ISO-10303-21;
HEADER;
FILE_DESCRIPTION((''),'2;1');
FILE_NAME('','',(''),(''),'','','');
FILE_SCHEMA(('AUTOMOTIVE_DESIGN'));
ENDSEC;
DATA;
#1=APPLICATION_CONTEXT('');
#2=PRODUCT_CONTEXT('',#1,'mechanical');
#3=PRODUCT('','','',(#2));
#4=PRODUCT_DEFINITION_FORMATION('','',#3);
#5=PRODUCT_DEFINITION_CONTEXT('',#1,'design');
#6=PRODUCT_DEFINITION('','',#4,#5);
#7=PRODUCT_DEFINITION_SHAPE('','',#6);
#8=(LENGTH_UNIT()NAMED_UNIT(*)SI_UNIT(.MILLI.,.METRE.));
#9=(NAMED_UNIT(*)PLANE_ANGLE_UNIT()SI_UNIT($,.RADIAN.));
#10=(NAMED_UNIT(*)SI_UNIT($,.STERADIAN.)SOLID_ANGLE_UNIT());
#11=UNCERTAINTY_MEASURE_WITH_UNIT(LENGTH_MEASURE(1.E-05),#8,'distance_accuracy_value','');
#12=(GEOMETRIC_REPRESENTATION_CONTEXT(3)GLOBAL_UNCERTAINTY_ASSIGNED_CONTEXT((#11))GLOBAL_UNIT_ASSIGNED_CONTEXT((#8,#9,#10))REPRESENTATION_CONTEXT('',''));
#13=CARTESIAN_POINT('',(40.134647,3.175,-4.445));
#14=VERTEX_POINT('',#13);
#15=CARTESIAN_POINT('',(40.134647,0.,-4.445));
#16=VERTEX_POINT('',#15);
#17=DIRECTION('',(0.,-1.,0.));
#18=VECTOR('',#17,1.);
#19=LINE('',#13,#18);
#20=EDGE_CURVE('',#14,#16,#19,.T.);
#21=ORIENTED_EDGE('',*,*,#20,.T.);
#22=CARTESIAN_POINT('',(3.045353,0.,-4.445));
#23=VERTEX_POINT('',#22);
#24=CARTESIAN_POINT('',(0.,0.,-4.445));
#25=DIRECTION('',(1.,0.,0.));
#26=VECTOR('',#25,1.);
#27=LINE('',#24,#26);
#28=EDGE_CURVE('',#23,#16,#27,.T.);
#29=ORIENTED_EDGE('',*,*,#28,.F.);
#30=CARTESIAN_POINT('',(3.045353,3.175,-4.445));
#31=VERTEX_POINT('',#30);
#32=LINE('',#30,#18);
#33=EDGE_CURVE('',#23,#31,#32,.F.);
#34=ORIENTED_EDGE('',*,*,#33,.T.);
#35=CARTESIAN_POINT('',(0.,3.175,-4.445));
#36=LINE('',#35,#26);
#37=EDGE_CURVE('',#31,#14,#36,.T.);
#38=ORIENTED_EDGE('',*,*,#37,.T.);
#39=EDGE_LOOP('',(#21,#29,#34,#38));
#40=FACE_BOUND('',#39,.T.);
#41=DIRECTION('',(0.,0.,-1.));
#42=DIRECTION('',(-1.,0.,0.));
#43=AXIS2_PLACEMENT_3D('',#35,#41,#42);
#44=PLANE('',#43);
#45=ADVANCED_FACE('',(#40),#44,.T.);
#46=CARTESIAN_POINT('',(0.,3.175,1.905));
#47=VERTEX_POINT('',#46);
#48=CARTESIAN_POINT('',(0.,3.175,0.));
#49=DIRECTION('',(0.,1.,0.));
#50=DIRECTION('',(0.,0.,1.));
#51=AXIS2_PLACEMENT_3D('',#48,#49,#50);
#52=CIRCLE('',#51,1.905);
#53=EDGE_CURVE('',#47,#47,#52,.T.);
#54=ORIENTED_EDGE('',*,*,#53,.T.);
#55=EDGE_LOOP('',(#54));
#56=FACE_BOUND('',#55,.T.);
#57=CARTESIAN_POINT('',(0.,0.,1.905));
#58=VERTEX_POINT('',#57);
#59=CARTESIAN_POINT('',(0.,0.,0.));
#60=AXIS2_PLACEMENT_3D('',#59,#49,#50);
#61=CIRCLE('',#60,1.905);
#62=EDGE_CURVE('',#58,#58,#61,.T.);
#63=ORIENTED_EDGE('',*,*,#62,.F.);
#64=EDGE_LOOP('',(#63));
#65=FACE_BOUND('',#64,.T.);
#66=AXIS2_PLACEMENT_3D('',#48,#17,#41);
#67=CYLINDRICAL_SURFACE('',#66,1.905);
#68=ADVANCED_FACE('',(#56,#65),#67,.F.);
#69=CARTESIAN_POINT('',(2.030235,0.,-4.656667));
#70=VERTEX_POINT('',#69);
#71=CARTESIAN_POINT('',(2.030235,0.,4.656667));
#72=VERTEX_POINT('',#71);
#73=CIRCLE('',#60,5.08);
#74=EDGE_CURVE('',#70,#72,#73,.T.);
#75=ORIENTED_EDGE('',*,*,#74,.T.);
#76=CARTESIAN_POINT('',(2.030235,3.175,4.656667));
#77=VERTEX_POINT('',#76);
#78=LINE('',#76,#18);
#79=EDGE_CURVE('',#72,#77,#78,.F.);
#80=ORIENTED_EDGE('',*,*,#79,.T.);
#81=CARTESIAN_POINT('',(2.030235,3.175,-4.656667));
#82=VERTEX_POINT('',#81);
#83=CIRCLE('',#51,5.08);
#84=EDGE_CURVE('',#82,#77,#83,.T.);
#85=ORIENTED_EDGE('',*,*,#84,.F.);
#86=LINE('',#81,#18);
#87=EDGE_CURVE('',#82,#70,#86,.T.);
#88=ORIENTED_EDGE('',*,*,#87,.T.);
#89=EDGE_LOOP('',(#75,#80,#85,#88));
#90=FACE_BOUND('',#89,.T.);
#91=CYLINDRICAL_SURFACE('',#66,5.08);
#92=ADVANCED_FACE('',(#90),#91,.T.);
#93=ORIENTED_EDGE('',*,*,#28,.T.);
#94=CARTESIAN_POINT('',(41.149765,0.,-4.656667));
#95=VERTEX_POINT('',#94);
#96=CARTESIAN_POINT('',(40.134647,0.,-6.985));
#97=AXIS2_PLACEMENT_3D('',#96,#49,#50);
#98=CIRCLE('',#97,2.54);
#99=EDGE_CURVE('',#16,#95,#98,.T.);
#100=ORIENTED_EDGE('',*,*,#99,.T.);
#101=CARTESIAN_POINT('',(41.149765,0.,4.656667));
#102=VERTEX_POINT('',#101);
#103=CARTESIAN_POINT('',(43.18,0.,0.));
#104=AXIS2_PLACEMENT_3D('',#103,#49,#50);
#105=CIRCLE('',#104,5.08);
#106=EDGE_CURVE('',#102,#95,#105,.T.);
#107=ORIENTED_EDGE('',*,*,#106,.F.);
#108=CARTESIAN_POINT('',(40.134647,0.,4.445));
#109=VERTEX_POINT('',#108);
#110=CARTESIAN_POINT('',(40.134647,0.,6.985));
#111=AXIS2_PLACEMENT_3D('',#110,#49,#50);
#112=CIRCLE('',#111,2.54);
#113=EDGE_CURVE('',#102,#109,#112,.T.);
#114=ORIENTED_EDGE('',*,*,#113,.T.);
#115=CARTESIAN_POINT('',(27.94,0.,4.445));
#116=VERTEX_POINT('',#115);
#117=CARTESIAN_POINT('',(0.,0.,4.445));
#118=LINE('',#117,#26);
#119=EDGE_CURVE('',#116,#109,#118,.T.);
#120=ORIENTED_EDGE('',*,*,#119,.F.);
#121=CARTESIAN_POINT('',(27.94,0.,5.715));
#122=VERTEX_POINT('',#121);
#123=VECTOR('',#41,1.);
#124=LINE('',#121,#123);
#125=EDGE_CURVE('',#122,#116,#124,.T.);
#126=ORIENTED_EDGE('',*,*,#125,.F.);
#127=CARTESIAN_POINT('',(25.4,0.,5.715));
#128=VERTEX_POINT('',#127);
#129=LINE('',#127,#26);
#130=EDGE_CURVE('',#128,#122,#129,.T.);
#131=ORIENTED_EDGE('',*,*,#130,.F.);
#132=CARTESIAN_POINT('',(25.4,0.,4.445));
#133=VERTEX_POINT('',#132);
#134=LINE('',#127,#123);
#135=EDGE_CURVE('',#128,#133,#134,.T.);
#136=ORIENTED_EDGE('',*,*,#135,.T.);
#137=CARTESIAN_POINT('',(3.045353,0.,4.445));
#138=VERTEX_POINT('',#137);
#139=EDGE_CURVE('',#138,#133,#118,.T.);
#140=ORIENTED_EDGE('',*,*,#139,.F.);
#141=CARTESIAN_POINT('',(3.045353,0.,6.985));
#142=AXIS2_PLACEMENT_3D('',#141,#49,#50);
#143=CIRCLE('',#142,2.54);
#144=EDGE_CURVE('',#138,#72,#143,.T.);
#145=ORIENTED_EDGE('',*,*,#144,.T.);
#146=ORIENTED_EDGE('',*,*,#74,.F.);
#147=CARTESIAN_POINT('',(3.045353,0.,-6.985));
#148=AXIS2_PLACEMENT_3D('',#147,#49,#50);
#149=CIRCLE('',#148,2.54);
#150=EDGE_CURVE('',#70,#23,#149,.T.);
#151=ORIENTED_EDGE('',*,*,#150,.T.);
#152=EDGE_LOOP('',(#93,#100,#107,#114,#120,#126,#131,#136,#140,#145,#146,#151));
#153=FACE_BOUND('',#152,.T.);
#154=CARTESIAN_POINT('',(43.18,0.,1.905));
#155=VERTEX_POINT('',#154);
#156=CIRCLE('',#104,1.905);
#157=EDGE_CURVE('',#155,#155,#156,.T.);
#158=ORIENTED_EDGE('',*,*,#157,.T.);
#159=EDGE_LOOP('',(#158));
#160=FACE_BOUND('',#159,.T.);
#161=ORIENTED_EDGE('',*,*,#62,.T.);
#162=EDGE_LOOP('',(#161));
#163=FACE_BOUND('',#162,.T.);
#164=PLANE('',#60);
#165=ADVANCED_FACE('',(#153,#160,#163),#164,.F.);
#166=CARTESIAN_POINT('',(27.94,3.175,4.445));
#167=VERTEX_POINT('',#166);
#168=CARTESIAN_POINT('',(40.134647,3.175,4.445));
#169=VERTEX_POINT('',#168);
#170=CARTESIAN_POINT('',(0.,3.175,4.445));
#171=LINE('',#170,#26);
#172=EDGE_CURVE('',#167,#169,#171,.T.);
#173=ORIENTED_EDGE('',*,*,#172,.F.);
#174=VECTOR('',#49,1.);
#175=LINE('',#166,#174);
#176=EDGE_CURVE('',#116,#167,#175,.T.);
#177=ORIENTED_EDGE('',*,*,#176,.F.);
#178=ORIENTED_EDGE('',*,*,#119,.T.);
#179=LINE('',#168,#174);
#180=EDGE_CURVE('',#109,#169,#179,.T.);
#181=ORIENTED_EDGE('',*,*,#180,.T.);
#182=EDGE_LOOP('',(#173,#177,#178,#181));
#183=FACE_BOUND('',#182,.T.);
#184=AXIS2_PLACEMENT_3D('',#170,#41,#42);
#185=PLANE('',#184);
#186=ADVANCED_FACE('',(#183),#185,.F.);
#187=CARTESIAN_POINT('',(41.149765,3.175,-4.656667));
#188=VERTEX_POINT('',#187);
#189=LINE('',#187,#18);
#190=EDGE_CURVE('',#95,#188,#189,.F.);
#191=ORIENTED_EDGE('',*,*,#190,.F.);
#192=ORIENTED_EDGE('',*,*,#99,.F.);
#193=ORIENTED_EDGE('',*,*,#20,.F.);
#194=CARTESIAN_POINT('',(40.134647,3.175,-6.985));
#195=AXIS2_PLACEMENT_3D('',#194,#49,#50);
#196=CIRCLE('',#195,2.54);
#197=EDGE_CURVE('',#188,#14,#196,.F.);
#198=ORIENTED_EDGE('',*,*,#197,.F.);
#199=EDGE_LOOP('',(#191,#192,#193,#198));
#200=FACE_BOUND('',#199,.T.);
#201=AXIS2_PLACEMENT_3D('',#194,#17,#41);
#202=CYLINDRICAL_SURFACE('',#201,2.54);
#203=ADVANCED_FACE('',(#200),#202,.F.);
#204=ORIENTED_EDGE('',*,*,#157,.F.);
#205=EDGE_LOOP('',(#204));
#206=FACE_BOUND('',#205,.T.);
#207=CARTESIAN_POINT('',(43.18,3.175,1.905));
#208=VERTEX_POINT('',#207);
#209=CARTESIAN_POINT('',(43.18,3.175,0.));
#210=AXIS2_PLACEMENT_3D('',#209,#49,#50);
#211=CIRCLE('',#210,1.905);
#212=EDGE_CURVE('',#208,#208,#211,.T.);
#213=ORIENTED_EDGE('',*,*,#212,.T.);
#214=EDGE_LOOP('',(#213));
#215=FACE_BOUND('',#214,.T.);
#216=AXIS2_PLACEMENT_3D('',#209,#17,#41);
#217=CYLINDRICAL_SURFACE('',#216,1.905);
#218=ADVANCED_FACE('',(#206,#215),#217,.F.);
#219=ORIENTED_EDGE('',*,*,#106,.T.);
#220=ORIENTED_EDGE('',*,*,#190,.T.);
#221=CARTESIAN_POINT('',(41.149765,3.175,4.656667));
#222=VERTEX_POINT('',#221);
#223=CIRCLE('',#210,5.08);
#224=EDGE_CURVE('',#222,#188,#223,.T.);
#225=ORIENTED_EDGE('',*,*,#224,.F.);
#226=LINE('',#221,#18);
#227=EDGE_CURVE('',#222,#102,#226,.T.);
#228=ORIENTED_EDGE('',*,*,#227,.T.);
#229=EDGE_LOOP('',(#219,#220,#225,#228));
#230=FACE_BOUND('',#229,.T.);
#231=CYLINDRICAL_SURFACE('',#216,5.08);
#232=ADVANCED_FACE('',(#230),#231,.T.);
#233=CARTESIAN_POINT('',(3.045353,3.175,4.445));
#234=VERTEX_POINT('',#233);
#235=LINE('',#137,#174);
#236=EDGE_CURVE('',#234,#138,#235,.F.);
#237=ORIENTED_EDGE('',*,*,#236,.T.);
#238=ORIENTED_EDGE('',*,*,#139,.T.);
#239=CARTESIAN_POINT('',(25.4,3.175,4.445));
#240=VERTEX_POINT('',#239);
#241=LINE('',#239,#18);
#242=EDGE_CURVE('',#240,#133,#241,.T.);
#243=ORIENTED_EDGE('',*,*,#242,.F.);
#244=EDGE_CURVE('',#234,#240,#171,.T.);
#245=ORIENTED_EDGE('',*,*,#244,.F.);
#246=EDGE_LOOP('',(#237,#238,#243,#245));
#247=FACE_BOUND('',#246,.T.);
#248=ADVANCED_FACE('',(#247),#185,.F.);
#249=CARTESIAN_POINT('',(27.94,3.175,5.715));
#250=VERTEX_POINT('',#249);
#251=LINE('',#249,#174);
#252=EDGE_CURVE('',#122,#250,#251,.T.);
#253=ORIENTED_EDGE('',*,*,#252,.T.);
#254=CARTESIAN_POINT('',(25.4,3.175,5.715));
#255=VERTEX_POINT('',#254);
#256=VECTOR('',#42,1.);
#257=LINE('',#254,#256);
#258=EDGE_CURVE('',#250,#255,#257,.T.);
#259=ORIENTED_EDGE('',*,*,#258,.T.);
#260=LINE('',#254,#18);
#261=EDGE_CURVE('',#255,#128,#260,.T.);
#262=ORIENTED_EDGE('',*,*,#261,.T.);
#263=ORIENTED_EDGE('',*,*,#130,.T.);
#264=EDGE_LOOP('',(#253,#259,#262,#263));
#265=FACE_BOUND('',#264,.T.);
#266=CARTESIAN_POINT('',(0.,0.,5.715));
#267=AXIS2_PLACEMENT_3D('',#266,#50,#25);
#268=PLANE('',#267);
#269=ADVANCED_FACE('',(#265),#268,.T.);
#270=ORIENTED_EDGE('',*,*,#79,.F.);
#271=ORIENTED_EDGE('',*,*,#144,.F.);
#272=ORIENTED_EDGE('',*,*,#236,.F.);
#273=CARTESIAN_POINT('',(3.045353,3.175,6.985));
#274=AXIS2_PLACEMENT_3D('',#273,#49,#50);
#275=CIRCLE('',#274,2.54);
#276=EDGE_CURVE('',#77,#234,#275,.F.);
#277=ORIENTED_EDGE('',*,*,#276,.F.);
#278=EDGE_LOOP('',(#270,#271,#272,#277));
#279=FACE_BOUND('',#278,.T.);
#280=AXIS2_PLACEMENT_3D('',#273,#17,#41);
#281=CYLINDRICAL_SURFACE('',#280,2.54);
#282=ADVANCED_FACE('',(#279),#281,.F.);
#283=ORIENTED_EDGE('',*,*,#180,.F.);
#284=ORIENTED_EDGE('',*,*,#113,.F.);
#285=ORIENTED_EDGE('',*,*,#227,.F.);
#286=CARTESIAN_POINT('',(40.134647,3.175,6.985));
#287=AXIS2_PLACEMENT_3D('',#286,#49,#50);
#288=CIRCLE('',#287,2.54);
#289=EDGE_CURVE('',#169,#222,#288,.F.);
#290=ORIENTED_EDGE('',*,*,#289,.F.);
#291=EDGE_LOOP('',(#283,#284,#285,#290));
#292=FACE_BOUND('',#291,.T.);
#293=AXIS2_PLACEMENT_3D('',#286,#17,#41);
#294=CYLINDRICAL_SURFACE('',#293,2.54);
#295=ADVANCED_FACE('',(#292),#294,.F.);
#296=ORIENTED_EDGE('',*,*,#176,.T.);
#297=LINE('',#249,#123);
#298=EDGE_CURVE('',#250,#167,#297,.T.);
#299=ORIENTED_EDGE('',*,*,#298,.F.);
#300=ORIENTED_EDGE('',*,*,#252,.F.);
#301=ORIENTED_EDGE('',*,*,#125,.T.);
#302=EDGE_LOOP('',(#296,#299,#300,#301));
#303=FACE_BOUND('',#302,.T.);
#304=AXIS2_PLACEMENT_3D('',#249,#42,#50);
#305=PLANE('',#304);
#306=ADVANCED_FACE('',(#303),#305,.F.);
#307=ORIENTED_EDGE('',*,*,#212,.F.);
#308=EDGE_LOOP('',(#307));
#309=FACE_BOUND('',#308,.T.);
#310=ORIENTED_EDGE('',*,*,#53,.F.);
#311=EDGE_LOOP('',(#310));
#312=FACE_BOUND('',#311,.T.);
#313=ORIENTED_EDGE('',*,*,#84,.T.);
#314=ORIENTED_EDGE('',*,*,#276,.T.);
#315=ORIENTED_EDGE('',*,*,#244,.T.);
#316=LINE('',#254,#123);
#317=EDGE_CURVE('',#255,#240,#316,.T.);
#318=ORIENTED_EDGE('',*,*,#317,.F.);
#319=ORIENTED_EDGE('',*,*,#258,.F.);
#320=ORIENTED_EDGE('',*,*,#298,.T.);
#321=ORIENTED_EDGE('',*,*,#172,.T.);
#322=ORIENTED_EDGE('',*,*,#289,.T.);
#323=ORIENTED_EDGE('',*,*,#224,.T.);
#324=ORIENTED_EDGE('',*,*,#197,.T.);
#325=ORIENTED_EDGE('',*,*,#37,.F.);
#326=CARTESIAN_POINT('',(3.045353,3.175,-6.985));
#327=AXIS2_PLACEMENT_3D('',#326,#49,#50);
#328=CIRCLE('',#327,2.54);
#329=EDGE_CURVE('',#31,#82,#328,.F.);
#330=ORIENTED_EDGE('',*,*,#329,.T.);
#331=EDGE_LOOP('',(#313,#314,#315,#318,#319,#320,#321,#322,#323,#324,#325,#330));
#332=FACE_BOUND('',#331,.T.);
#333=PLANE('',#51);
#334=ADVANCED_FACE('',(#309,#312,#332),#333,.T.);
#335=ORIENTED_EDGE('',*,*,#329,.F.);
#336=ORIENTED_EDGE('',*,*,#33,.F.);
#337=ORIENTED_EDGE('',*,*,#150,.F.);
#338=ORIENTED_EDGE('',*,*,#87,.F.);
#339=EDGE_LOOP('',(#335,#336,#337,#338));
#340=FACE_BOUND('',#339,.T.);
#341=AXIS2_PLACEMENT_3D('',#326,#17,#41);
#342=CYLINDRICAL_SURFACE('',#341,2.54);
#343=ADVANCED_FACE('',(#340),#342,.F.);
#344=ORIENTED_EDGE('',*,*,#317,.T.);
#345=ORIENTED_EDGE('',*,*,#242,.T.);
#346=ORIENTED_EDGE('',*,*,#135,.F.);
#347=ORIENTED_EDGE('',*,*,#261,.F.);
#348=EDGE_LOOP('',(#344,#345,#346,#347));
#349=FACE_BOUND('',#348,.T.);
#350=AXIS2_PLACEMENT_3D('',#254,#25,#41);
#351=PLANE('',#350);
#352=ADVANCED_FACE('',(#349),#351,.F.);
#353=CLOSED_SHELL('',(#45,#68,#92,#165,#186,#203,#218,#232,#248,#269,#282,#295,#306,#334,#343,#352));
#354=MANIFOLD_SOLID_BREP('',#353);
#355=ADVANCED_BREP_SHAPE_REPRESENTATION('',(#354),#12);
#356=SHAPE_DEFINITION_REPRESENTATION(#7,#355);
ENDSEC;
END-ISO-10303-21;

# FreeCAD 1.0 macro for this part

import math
import FreeCAD as App
import Part
import Sketcher
from FreeCAD import Vector
Q = App.Units.Quantity


def edges_at(feature, points):
    """Names of the edges that pass closest to the given points."""
    edges = feature.Shape.Edges
    near = lambda p: min(range(len(edges)), key=lambda i: edges[i].distToShape(Part.Vertex(*p))[0])
    return sorted({f"Edge{near(p) + 1}" for p in points})


def add_polygon(sketch, points):
    """Adds a closed chain of lines whose ends are joined by coincident constraints."""
    first, n = sketch.GeometryCount, len(points)
    for a, b in zip(points, points[1:] + points[:1]):
        sketch.addGeometry(Part.LineSegment(App.Vector(*a, 0), App.Vector(*b, 0)), False)
    for i in range(n):
        sketch.addConstraint(Sketcher.Constraint("Coincident", first + i, 2, first + (i + 1) % n, 1))

doc = App.newDocument("Part")
params = doc.addObject("Spreadsheet::Sheet", "Params")
for row, (alias, value) in enumerate([
    ("sketch1_radius", "0.2 in"),
    ("sketch1_diameter", "0.15 in"),
    ("pad1_length", "0.125 in"),
    ("fillet_radius", "0.1 in"),
    ("sketch2_width", "0.1 in"),
    ("sketch2_height", "0.125 in"),
    ("pad2_length", "0.05 in"),
], start=1):
    params.set(f"A{row}", alias)
    params.set(f"B{row}", "=" + value)
    params.setAlias(f"B{row}", alias)

body = doc.addObject("PartDesign::Body", "Body")

sketch1 = doc.addObject("Sketcher::SketchObject", "Sketch")
body.addObject(sketch1)
sketch1.AttachmentSupport = (doc.XZ_Plane, [""])
sketch1.MapMode = "FlatFace"
sketch1.addGeometry(Part.ArcOfCircle(Part.Circle(Vector(0, 0, 0), Vector(0, 0, 1), 5.1), math.radians(61), math.radians(299)), False)
sketch1.addGeometry(Part.LineSegment(Vector(2.5, 4.4, 0), Vector(40.7, 4.4, 0)), False)
sketch1.addGeometry(Part.ArcOfCircle(Part.Circle(Vector(43.2, 0, 0), Vector(0, 0, 1), 5.1), math.radians(-119), math.radians(119)), False)
sketch1.addGeometry(Part.LineSegment(Vector(40.7, -4.4, 0), Vector(2.5, -4.4, 0)), False)
sketch1.addGeometry(Part.Circle(Vector(0, 0, 0), Vector(0, 0, 1), 1.9), False)
sketch1.addGeometry(Part.Circle(Vector(43.2, 0, 0), Vector(0, 0, 1), 1.9), False)
sketch1.addConstraint(Sketcher.Constraint("Coincident", 0, 1, 1, 1))
sketch1.addConstraint(Sketcher.Constraint("Coincident", 1, 2, 2, 2))
sketch1.addConstraint(Sketcher.Constraint("Coincident", 2, 1, 3, 1))
sketch1.addConstraint(Sketcher.Constraint("Coincident", 3, 2, 0, 2))
sketch1.addConstraint(Sketcher.Constraint("Horizontal", 1))
sketch1.addConstraint(Sketcher.Constraint("Horizontal", 3))
sketch1.addConstraint(Sketcher.Constraint("Coincident", 0, 3, -1, 1))
sketch1.addConstraint(Sketcher.Constraint("Coincident", 4, 3, -1, 1))
sketch1.addConstraint(Sketcher.Constraint("Coincident", 5, 3, 2, 3))
sketch1.addConstraint(Sketcher.Constraint("Equal", 0, 2))
sketch1.addConstraint(Sketcher.Constraint("Equal", 4, 5))
sketch1.addConstraint(Sketcher.Constraint("Symmetric", 1, 2, 2, 1, -1))
sketch1.addConstraint(Sketcher.Constraint("Radius", 0, Q("0.2 in")))
sketch1.addConstraint(Sketcher.Constraint("Diameter", 4, Q("0.15 in")))
sketch1.addConstraint(Sketcher.Constraint("DistanceX", -1, 1, 2, 3, Q("1.7 in")))
sketch1.addConstraint(Sketcher.Constraint("DistanceY", 2, 1, 1, 2, Q("0.35 in")))
sketch1.setExpression("Constraints[12]", "Params.sketch1_radius")
sketch1.setExpression("Constraints[13]", "Params.sketch1_diameter")
pad1 = doc.addObject("PartDesign::Pad", "Pad")
body.addObject(pad1)
pad1.Profile = sketch1
pad1.setExpression("Length", "Params.pad1_length")
pad1.Reversed = True
doc.recompute()

fillet = doc.addObject("PartDesign::Fillet", "Fillet")
body.addObject(fillet)
fillet.Base = (pad1, edges_at(pad1, [
    (2.459, 1.587, -4.445),
    (40.721, 1.587, -4.445),
    (40.721, 1.587, 4.445),
    (2.459, 1.587, 4.445),
]))
fillet.setExpression("Radius", "Params.fillet_radius")

sketch2 = doc.addObject("Sketcher::SketchObject", "Sketch001")
body.addObject(sketch2)
sketch2.AttachmentSupport = (doc.XY_Plane, [""])
sketch2.MapMode = "FlatFace"
sketch2.AttachmentOffset = App.Placement(Vector(0, 0, 0.175 * 25.4), App.Rotation())
add_polygon(sketch2, [(25.4, 3.2), (25.4, 0), (27.9, 0), (27.9, 3.2)])
sketch2.addConstraint(Sketcher.Constraint("Vertical", 0))
sketch2.addConstraint(Sketcher.Constraint("Horizontal", 1))
sketch2.addConstraint(Sketcher.Constraint("Vertical", 2))
sketch2.addConstraint(Sketcher.Constraint("Horizontal", 3))
sketch2.addConstraint(Sketcher.Constraint("PointOnObject", 0, 2, -1))
sketch2.addConstraint(Sketcher.Constraint("DistanceX", 1, 1, 1, 2, Q("0.1 in")))
sketch2.addConstraint(Sketcher.Constraint("DistanceX", -1, 1, 0, 2, Q("1 in")))
sketch2.addConstraint(Sketcher.Constraint("DistanceY", 0, 2, 0, 1, Q("0.125 in")))
sketch2.setExpression("Constraints[9]", "Params.sketch2_width")
sketch2.setExpression("Constraints[11]", "Params.sketch2_height")
pad2 = doc.addObject("PartDesign::Pad", "Pad001")
body.addObject(pad2)
pad2.Profile = sketch2
pad2.setExpression("Length", "Params.pad2_length")

doc.recompute()
